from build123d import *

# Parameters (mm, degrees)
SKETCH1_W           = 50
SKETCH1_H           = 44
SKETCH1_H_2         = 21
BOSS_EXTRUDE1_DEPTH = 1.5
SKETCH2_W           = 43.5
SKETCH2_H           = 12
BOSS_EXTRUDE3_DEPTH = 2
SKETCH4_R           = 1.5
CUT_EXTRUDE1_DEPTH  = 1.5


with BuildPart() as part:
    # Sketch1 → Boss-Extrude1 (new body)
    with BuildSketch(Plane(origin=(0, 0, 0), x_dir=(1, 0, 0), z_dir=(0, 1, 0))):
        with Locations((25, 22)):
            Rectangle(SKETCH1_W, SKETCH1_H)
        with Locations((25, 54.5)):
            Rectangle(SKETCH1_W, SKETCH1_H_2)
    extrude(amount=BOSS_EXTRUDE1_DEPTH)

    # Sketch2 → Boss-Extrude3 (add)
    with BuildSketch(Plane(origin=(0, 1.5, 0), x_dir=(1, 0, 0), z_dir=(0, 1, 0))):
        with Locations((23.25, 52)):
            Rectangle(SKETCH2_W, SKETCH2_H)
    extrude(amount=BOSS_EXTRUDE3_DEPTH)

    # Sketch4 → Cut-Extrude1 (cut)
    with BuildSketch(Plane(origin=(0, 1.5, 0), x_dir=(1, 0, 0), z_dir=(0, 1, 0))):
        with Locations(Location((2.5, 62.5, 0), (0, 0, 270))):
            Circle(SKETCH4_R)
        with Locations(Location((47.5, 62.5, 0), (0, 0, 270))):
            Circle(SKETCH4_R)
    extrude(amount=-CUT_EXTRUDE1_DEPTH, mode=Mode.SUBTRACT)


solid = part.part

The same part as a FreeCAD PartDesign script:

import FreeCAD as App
import Part
import Sketcher

V = App.Vector

doc = App.newDocument("Part")
body = doc.addObject("PartDesign::Body", "Body")

# Sketch on XZ plane
sketch1 = body.newObject("Sketcher::SketchObject", "Sketch")
sketch1.AttachmentSupport = (doc.getObject("XZ_Plane"), [""])
sketch1.MapMode = "FlatFace"
sketch1.addGeometry([
    Part.LineSegment(V(0, 0, 0), V(50, 0, 0)),
    Part.LineSegment(V(50, 0, 0), V(50, -65, 0)),
    Part.LineSegment(V(50, -65, 0), V(0, -65, 0)),
    Part.LineSegment(V(0, -65, 0), V(0, 0, 0)),
], False)
sketch1.addConstraint([
    Sketcher.Constraint("Coincident", 0, 2, 1, 1),
    Sketcher.Constraint("Coincident", 1, 2, 2, 1),
    Sketcher.Constraint("Coincident", 2, 2, 3, 1),
    Sketcher.Constraint("Coincident", 3, 2, 0, 1),
    Sketcher.Constraint("Horizontal", 0),
    Sketcher.Constraint("Vertical", 1),
    Sketcher.Constraint("Horizontal", 2),
    Sketcher.Constraint("Vertical", 3),
    Sketcher.Constraint("Coincident", 3, 2, -1, 1),
    Sketcher.Constraint("DistanceX", 0, 1, 0, 2, 50.0),
    Sketcher.Constraint("DistanceY", 1, 2, 1, 1, 65.0),
])
pad1 = body.newObject("PartDesign::Pad", "Pad")
pad1.Profile = sketch1
pad1.Length = 1.5
pad1.Reversed = True

# Sketch on XZ plane
sketch2 = body.newObject("Sketcher::SketchObject", "Sketch001")
sketch2.AttachmentSupport = (doc.getObject("XZ_Plane"), [""])
sketch2.MapMode = "FlatFace"
sketch2.AttachmentOffset = App.Placement(V(0, 0, -1.5), App.Rotation())
sketch2.addGeometry([
    Part.LineSegment(V(2, -58, 0), V(2, -46, 0)),
    Part.LineSegment(V(2, -46, 0), V(45, -46, 0)),
    Part.LineSegment(V(45, -46, 0), V(45, -58, 0)),
    Part.LineSegment(V(45, -58, 0), V(2, -58, 0)),
], False)
sketch2.addConstraint([
    Sketcher.Constraint("Coincident", 0, 2, 1, 1),
    Sketcher.Constraint("Coincident", 1, 2, 2, 1),
    Sketcher.Constraint("Coincident", 2, 2, 3, 1),
    Sketcher.Constraint("Coincident", 3, 2, 0, 1),
    Sketcher.Constraint("Vertical", 0),
    Sketcher.Constraint("Horizontal", 1),
    Sketcher.Constraint("Vertical", 2),
    Sketcher.Constraint("Horizontal", 3),
    Sketcher.Constraint("DistanceY", 0, 1, 0, 2, 12.0),
    Sketcher.Constraint("DistanceX", 1, 1, 1, 2, 43.5),
    Sketcher.Constraint("DistanceY", 0, 2, -1, 1, 46.0),
    Sketcher.Constraint("DistanceX", -1, 1, 1, 2, 45.0),
])
pad2 = body.newObject("PartDesign::Pad", "Pad001")
pad2.Profile = sketch2
pad2.Length = 2
pad2.Reversed = True

# Sketch on XZ plane
sketch3 = body.newObject("Sketcher::SketchObject", "Sketch002")
sketch3.AttachmentSupport = (doc.getObject("XZ_Plane"), [""])
sketch3.MapMode = "FlatFace"
sketch3.AttachmentOffset = App.Placement(V(0, 0, -1.5), App.Rotation())
sketch3.addGeometry([
    Part.Circle(V(2.5, -62.5, 0), V(0, 0, 1), 1.5),
    Part.Circle(V(47.5, -62.5, 0), V(0, 0, 1), 1.5),
], False)
sketch3.addConstraint([
    Sketcher.Constraint("Equal", 0, 1),
    Sketcher.Constraint("Horizontal", 0, 3, 1, 3),
    Sketcher.Constraint("Diameter", 0, 3.0),
    Sketcher.Constraint("DistanceX", 0, 3, 1, 3, 45.0),
    Sketcher.Constraint("DistanceX", -1, 1, 0, 3, 2.5),
    Sketcher.Constraint("DistanceY", 0, 3, -1, 1, 62.5),
])
pocket1 = body.newObject("PartDesign::Pocket", "Pocket")
pocket1.Profile = sketch3
pocket1.Length = 1.5
pocket1.Reversed = True

doc.recompute()
